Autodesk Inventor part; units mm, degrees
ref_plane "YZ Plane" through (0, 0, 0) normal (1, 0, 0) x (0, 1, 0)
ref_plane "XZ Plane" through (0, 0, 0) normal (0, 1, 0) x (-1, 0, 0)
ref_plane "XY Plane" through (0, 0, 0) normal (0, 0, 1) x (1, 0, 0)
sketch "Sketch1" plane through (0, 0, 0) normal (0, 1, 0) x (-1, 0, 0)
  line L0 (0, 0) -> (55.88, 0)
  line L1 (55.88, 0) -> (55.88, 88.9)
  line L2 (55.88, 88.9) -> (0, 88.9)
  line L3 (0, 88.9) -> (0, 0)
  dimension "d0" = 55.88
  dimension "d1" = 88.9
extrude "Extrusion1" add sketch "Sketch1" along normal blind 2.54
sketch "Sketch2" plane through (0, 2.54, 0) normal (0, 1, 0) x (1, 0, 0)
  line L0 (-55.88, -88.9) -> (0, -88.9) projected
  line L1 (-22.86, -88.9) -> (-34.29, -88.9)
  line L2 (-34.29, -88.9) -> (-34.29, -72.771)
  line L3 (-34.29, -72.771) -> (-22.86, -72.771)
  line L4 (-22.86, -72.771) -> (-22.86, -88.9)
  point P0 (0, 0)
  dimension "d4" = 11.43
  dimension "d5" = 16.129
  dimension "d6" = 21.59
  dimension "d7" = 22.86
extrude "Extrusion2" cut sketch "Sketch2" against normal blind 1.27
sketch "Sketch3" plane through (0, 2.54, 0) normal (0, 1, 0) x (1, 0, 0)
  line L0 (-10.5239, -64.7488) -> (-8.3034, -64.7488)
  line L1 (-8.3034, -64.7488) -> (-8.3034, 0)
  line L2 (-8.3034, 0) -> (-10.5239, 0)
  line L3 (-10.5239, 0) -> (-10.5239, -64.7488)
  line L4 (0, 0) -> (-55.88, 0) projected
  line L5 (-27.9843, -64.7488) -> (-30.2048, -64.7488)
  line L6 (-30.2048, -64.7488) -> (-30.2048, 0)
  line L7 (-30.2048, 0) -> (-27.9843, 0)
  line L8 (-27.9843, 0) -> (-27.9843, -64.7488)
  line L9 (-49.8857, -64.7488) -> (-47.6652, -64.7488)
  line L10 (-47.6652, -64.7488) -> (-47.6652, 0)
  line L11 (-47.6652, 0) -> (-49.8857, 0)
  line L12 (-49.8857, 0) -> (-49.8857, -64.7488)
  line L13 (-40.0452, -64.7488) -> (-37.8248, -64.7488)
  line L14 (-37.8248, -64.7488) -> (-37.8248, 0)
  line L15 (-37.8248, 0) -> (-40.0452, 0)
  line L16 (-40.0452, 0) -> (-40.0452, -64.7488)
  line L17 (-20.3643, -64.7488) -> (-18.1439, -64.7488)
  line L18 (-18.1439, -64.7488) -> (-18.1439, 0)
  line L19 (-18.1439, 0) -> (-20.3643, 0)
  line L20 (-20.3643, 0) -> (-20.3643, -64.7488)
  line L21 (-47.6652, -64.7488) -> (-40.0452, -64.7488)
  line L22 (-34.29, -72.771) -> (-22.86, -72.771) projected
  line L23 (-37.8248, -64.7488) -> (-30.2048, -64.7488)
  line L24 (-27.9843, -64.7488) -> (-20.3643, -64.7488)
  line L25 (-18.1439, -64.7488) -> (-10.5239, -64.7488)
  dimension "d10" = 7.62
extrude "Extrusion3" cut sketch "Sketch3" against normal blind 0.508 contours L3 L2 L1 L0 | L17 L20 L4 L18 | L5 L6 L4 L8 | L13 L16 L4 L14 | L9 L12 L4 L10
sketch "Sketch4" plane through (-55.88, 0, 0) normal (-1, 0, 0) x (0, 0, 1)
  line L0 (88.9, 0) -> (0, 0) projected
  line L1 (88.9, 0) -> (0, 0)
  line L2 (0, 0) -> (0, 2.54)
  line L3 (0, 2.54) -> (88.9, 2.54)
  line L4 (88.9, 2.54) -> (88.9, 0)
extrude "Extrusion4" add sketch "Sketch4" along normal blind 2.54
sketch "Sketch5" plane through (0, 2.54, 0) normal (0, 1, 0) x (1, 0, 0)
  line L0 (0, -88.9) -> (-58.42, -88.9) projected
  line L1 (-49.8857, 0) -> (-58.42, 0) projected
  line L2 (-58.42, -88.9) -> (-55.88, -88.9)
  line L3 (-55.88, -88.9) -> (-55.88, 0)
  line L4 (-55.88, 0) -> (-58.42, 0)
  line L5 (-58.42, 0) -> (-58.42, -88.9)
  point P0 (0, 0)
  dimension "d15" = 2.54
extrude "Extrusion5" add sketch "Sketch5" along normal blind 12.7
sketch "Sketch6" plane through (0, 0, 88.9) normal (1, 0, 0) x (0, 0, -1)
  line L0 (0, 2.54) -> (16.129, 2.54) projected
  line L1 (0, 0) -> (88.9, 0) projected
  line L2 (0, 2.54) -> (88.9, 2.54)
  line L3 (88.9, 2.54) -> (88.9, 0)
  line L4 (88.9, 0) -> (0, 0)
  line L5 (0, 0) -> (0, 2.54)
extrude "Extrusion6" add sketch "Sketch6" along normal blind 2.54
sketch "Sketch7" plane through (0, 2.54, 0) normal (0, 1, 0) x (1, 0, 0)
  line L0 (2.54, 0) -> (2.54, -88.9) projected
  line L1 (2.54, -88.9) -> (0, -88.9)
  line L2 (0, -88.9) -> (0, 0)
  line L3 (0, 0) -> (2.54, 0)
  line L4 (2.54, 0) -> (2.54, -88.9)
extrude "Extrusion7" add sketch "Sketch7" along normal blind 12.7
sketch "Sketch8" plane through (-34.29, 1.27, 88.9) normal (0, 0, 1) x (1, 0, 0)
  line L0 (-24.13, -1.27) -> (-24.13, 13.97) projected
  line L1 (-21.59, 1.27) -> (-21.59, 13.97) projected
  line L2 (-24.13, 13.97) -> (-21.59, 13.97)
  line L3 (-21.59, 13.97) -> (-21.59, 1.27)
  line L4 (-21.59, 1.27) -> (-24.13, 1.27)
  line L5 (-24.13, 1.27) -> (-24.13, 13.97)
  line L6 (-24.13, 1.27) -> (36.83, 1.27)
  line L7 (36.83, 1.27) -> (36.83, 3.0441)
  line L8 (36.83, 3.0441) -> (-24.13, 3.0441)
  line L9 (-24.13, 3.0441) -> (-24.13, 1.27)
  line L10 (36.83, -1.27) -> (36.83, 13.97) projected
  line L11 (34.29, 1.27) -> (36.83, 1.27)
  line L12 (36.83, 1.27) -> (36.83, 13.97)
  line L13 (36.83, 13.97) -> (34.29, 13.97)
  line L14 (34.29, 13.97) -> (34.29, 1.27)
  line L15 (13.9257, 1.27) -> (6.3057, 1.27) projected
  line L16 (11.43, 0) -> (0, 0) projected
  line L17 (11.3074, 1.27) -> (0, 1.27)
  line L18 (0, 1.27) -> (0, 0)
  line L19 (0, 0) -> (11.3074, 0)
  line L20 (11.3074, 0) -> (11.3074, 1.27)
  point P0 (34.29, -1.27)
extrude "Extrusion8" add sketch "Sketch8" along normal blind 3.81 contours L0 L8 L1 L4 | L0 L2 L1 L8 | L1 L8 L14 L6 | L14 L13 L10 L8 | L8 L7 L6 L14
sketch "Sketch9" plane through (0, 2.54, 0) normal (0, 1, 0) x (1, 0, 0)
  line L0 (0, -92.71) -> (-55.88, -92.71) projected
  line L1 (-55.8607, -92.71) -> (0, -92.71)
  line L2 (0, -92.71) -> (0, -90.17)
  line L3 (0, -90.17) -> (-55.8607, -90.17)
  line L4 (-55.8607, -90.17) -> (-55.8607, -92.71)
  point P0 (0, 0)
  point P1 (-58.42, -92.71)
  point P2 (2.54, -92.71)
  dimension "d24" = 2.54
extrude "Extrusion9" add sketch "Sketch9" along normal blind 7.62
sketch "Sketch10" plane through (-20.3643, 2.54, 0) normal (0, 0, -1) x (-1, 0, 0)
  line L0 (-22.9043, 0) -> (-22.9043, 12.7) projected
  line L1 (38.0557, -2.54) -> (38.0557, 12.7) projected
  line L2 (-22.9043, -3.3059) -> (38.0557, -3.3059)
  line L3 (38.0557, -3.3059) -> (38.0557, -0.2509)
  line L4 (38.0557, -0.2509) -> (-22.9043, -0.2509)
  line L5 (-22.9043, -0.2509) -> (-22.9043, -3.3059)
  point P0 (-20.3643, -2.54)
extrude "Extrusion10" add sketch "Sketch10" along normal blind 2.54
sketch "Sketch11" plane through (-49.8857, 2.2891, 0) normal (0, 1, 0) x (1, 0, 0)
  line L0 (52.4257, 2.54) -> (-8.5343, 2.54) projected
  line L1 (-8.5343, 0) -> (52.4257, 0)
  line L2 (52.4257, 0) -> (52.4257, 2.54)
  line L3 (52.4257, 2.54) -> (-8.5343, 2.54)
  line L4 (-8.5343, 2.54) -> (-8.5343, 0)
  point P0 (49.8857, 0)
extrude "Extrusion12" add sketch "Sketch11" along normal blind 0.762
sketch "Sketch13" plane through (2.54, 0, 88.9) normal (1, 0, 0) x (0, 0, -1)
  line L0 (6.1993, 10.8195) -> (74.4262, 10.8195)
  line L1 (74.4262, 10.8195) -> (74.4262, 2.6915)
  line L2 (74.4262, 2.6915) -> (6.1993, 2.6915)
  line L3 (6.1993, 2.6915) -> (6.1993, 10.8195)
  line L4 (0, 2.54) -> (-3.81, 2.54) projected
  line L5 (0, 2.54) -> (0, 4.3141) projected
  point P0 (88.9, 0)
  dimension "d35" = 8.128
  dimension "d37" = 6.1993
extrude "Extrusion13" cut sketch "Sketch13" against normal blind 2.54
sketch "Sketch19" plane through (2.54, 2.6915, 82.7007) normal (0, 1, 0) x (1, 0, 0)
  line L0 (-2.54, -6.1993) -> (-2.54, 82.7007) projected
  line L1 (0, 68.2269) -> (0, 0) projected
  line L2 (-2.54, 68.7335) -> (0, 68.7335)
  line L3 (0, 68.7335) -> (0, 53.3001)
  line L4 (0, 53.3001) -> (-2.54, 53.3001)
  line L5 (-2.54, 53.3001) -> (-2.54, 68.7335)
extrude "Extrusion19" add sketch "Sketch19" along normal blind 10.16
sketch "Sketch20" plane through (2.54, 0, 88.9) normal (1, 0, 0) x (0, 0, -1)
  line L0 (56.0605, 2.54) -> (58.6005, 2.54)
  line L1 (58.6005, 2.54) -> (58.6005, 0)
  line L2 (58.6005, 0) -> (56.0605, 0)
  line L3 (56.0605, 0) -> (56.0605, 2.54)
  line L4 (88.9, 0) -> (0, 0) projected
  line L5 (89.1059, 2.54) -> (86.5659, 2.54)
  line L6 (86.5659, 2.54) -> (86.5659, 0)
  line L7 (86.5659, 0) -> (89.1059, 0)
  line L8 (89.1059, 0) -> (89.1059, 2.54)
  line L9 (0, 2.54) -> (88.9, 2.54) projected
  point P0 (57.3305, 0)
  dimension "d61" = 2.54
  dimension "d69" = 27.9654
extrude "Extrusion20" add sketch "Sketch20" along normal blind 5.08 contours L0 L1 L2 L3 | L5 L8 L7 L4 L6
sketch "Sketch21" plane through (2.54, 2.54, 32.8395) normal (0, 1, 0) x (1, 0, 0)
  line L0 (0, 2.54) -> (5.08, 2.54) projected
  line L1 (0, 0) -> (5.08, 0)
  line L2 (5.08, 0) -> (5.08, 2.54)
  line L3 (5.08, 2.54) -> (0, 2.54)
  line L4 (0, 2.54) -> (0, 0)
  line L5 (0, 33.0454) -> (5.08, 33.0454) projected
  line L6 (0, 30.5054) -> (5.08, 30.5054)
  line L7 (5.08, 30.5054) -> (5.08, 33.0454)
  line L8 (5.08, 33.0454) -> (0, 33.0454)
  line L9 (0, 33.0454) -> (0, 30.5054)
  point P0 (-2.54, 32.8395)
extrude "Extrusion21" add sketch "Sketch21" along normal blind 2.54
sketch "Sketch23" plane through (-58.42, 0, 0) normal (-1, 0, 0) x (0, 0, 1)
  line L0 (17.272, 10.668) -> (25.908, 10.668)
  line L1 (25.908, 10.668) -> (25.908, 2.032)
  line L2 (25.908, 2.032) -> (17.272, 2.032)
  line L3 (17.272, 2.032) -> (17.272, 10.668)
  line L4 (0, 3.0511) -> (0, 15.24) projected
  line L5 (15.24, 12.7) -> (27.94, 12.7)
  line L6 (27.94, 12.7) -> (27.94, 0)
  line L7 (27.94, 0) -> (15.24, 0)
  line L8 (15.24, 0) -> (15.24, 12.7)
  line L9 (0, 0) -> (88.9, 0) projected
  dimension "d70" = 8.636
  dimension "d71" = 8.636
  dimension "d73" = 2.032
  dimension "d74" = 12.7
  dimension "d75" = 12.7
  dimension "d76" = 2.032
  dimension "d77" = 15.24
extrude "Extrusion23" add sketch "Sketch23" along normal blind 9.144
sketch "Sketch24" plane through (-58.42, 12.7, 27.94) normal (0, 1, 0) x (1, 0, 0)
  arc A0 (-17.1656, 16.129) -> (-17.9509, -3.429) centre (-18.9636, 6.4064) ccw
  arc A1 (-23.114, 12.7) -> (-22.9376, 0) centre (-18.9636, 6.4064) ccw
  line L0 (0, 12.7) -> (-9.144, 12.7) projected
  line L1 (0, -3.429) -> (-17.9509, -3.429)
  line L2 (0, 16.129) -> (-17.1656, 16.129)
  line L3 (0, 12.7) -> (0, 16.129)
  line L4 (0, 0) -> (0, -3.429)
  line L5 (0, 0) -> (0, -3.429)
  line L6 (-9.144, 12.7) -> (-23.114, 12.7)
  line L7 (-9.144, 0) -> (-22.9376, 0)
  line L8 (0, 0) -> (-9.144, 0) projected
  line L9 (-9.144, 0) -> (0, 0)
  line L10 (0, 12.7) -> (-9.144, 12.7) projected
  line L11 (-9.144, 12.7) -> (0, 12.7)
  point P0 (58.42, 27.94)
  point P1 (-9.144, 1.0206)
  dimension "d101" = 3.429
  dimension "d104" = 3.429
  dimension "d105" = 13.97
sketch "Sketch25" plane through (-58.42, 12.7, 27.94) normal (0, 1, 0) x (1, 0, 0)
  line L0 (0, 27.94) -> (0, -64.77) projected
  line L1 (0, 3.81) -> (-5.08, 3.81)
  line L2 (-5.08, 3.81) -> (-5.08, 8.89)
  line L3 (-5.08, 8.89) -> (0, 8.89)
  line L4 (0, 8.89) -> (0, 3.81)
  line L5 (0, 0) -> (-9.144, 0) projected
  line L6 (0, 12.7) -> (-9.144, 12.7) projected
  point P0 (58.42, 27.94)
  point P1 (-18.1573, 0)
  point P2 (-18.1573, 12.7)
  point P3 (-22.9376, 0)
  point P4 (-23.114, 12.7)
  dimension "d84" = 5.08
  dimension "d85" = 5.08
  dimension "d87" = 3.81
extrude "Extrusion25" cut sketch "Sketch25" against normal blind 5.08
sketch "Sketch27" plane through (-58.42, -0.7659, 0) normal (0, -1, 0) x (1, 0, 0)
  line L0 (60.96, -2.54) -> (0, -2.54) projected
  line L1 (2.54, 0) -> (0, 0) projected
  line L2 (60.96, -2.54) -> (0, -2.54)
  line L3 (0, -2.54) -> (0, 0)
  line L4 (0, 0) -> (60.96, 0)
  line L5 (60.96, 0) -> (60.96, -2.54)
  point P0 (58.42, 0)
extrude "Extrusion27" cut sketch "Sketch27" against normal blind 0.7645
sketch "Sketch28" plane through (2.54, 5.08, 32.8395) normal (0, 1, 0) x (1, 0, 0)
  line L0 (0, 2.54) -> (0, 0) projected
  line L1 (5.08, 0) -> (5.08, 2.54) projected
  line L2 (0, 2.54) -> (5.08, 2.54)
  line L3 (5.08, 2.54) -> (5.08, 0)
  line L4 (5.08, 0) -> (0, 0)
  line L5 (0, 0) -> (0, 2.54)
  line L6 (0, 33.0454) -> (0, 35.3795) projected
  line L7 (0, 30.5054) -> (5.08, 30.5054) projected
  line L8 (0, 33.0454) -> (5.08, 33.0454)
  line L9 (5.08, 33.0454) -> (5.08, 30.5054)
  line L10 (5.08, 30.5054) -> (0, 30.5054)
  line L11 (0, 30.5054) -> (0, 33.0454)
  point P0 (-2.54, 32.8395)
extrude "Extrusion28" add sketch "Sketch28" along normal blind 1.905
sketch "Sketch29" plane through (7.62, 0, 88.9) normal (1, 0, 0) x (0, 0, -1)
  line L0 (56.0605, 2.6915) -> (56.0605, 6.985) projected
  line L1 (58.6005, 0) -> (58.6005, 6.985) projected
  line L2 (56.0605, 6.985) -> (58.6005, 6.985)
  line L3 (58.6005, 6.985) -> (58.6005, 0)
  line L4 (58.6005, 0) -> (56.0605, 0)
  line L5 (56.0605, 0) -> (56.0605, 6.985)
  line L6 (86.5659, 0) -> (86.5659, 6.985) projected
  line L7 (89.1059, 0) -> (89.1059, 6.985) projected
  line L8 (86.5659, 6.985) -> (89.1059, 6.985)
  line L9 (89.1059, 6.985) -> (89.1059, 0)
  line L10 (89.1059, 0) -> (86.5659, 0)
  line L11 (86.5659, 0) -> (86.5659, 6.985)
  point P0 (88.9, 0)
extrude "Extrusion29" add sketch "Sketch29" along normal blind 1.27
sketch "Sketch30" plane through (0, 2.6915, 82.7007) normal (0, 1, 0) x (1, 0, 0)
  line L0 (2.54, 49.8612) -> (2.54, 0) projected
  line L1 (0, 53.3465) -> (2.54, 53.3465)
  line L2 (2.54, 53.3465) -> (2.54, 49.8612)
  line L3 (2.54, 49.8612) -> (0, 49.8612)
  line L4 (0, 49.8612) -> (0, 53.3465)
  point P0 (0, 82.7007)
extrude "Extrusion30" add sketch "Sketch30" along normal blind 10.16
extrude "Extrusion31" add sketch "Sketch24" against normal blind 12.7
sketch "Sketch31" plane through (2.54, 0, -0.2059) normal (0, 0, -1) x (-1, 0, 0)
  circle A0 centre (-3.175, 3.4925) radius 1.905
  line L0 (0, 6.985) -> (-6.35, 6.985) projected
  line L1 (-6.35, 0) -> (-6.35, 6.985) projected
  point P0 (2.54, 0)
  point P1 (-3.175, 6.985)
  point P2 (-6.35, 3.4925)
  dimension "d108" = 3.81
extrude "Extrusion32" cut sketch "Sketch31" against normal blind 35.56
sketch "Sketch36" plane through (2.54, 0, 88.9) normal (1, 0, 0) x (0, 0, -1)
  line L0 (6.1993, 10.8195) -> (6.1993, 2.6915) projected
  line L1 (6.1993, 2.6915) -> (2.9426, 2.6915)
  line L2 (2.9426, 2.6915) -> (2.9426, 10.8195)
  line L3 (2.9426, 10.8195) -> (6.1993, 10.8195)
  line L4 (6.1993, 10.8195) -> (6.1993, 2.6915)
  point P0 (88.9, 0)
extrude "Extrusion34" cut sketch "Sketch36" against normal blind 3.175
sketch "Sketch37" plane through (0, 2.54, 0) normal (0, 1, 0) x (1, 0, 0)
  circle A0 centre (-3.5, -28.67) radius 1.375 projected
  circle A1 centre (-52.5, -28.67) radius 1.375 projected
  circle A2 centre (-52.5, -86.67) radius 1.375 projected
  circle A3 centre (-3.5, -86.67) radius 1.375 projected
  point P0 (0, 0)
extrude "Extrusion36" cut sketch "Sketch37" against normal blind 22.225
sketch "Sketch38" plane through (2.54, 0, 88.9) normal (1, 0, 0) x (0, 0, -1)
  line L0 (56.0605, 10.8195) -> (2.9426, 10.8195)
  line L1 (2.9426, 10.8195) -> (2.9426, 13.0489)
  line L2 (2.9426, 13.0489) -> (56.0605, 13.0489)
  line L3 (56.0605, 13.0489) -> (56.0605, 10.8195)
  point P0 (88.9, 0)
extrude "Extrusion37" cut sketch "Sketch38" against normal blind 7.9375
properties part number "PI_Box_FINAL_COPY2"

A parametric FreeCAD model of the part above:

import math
import FreeCAD as App
import Part
import Sketcher

V = App.Vector
Q = App.Units.Quantity


def add_polygon(sketch, points):
    """Adds a closed chain of lines whose ends are joined by coincident constraints."""
    first, n = sketch.GeometryCount, len(points)
    for a, b in zip(points, points[1:] + points[:1]):
        sketch.addGeometry(Part.LineSegment(App.Vector(*a, 0), App.Vector(*b, 0)), False)
    for i in range(n):
        sketch.addConstraint(Sketcher.Constraint("Coincident", first + i, 2, first + (i + 1) % n, 1))

doc = App.newDocument("Part")
body = doc.addObject("PartDesign::Body", "Body")

sketch1 = body.newObject("Sketcher::SketchObject", "Sketch")
sketch1.AttachmentSupport = (doc.getObject("XZ_Plane"), [""])
sketch1.MapMode = "FlatFace"
add_polygon(sketch1, [(0, 88.9), (0, 0), (-55.88, 0), (-55.88, 88.9)])
sketch1.addConstraint(Sketcher.Constraint("Vertical", 0))
sketch1.addConstraint(Sketcher.Constraint("Horizontal", 1))
sketch1.addConstraint(Sketcher.Constraint("Vertical", 2))
sketch1.addConstraint(Sketcher.Constraint("Horizontal", 3))
sketch1.addConstraint(Sketcher.Constraint("Coincident", 0, 2, -1, 1))
sketch1.addConstraint(Sketcher.Constraint("DistanceX", 1, 2, 1, 1, Q("2.2 in")))
sketch1.addConstraint(Sketcher.Constraint("DistanceY", 0, 2, 0, 1, Q("3.5 in")))
pad1 = body.newObject("PartDesign::Pad", "Pad")
pad1.Profile = sketch1
pad1.Length = Q("0.1 in")
pad1.Reversed = True

sketch2 = body.newObject("Sketcher::SketchObject", "Sketch001")
sketch2.AttachmentSupport = (doc.getObject("XZ_Plane"), [""])
sketch2.MapMode = "FlatFace"
sketch2.AttachmentOffset = App.Placement(V(0, 0, -0.1 * 25.4), App.Rotation())
add_polygon(sketch2, [(-34.29, 72.771), (-34.29, 88.9), (-22.86, 88.9), (-22.86, 72.771)])
sketch2.addConstraint(Sketcher.Constraint("Vertical", 0))
sketch2.addConstraint(Sketcher.Constraint("Horizontal", 1))
sketch2.addConstraint(Sketcher.Constraint("Vertical", 2))
sketch2.addConstraint(Sketcher.Constraint("Horizontal", 3))
sketch2.addConstraint(Sketcher.Constraint("DistanceX", 1, 1, 1, 2, Q("0.45 in")))
sketch2.addConstraint(Sketcher.Constraint("DistanceX", 1, 2, -1, 1, Q("0.9 in")))
sketch2.addConstraint(Sketcher.Constraint("DistanceY", 0, 1, 0, 2, Q("0.635 in")))
sketch2.addConstraint(Sketcher.Constraint("DistanceY", -1, 1, 0, 2, Q("3.5 in")))
pocket1 = body.newObject("PartDesign::Pocket", "Pocket")
pocket1.Profile = sketch2
pocket1.Length = Q("0.05 in")
pocket1.Reversed = True

sketch3 = body.newObject("Sketcher::SketchObject", "Sketch002")
sketch3.AttachmentSupport = (doc.getObject("XZ_Plane"), [""])
sketch3.MapMode = "FlatFace"
sketch3.AttachmentOffset = App.Placement(V(0, 0, -0.1 * 25.4), App.Rotation())
add_polygon(sketch3, [(-10.5239, 0), (-10.5239, 64.7488), (-8.3034, 64.7488), (-8.3034, 0)])
add_polygon(sketch3, [(-20.3643, 64.7488), (-18.1439, 64.7488), (-18.1439, 0), (-20.3643, 0)])
add_polygon(sketch3, [(-30.2048, 64.7488), (-27.9843, 64.7488), (-27.9843, 0), (-30.2048, 0)])
add_polygon(sketch3, [(-40.0452, 64.7488), (-37.8248, 64.7488), (-37.8248, 0), (-40.0452, 0)])
add_polygon(sketch3, [(-49.8857, 64.7488), (-47.6652, 64.7488), (-47.6652, 0), (-49.8857, 0)])
sketch3.addConstraint(Sketcher.Constraint("Vertical", 0))
sketch3.addConstraint(Sketcher.Constraint("Horizontal", 1))
sketch3.addConstraint(Sketcher.Constraint("Vertical", 2))
sketch3.addConstraint(Sketcher.Constraint("Horizontal", 3))
sketch3.addConstraint(Sketcher.Constraint("Horizontal", 4))
sketch3.addConstraint(Sketcher.Constraint("Vertical", 5))
sketch3.addConstraint(Sketcher.Constraint("Horizontal", 6))
sketch3.addConstraint(Sketcher.Constraint("Vertical", 7))
sketch3.addConstraint(Sketcher.Constraint("Horizontal", 8))
sketch3.addConstraint(Sketcher.Constraint("Vertical", 9))
sketch3.addConstraint(Sketcher.Constraint("Horizontal", 10))
sketch3.addConstraint(Sketcher.Constraint("Vertical", 11))
sketch3.addConstraint(Sketcher.Constraint("Horizontal", 12))
sketch3.addConstraint(Sketcher.Constraint("Vertical", 13))
sketch3.addConstraint(Sketcher.Constraint("Horizontal", 14))
sketch3.addConstraint(Sketcher.Constraint("Vertical", 15))
sketch3.addConstraint(Sketcher.Constraint("Horizontal", 16))
sketch3.addConstraint(Sketcher.Constraint("Vertical", 17))
sketch3.addConstraint(Sketcher.Constraint("Horizontal", 18))
sketch3.addConstraint(Sketcher.Constraint("Vertical", 19))
sketch3.addConstraint(Sketcher.Constraint("PointOnObject", 2, 2, -1))
sketch3.addConstraint(Sketcher.Constraint("PointOnObject", 5, 2, -1))
sketch3.addConstraint(Sketcher.Constraint("PointOnObject", 9, 2, -1))
sketch3.addConstraint(Sketcher.Constraint("PointOnObject", 13, 2, -1))
sketch3.addConstraint(Sketcher.Constraint("PointOnObject", 17, 2, -1))
sketch3.addConstraint(Sketcher.Constraint("Horizontal", 1, 2, 4, 2))
sketch3.addConstraint(Sketcher.Constraint("Horizontal", 7, 2, 8, 2))
sketch3.addConstraint(Sketcher.Constraint("Horizontal", 11, 2, 12, 2))
sketch3.addConstraint(Sketcher.Constraint("Horizontal", 15, 2, 16, 2))
sketch3.addConstraint(Sketcher.Constraint("Equal", 3, 4))
sketch3.addConstraint(Sketcher.Constraint("Equal", 6, 8))
sketch3.addConstraint(Sketcher.Constraint("Equal", 10, 12))
sketch3.addConstraint(Sketcher.Constraint("Equal", 14, 16))
sketch3.addConstraint(Sketcher.Constraint("DistanceX", 4, 2, 0, 2, Q("0.3 in")))
sketch3.addConstraint(Sketcher.Constraint("DistanceX", 8, 2, 7, 2, Q("0.3 in")))
sketch3.addConstraint(Sketcher.Constraint("DistanceX", 12, 2, 11, 2, Q("0.3 in")))
sketch3.addConstraint(Sketcher.Constraint("DistanceX", 16, 2, 15, 2, Q("0.3 in")))
sketch3.addConstraint(Sketcher.Constraint("DistanceX", 18, 2, -1, 1, Q("1.964 in")))
sketch3.addConstraint(Sketcher.Constraint("DistanceX", 1, 1, 1, 2, Q("2.2205 mm")))
sketch3.addConstraint(Sketcher.Constraint("DistanceY", 0, 1, 0, 2, Q("64.7488 mm")))
pocket2 = body.newObject("PartDesign::Pocket", "Pocket001")
pocket2.Profile = sketch3
pocket2.Length = Q("0.02 in")
pocket2.Reversed = True

sketch4 = body.newObject("Sketcher::SketchObject", "Sketch003")
sketch4.AttachmentSupport = (doc.getObject("YZ_Plane"), [""])
sketch4.MapMode = "FlatFace"
sketch4.AttachmentOffset = App.Placement(V(0, 0, -2.2 * 25.4), App.Rotation())
add_polygon(sketch4, [(0, 0), (0, 88.9), (2.54, 88.9), (2.54, 0)])
sketch4.addConstraint(Sketcher.Constraint("Vertical", 0))
sketch4.addConstraint(Sketcher.Constraint("Horizontal", 1))
sketch4.addConstraint(Sketcher.Constraint("Vertical", 2))
sketch4.addConstraint(Sketcher.Constraint("Horizontal", 3))
sketch4.addConstraint(Sketcher.Constraint("Coincident", 3, 2, -1, 1))
sketch4.addConstraint(Sketcher.Constraint("DistanceX", 1, 1, 1, 2, Q("0.1 in")))
sketch4.addConstraint(Sketcher.Constraint("DistanceY", 0, 1, 0, 2, Q("3.5 in")))
pad2 = body.newObject("PartDesign::Pad", "Pad001")
pad2.Profile = sketch4
pad2.Length = Q("0.1 in")
pad2.Reversed = True

sketch5 = body.newObject("Sketcher::SketchObject", "Sketch004")
sketch5.AttachmentSupport = (doc.getObject("XZ_Plane"), [""])
sketch5.MapMode = "FlatFace"
sketch5.AttachmentOffset = App.Placement(V(0, 0, -0.1 * 25.4), App.Rotation())
add_polygon(sketch5, [(-58.42, 88.9), (-55.88, 88.9), (-55.88, 0), (-58.42, 0)])
sketch5.addConstraint(Sketcher.Constraint("Horizontal", 0))
sketch5.addConstraint(Sketcher.Constraint("Vertical", 1))
sketch5.addConstraint(Sketcher.Constraint("Horizontal", 2))
sketch5.addConstraint(Sketcher.Constraint("Vertical", 3))
sketch5.addConstraint(Sketcher.Constraint("PointOnObject", 1, 2, -1))
sketch5.addConstraint(Sketcher.Constraint("DistanceX", 0, 1, 0, 2, Q("0.1 in")))
sketch5.addConstraint(Sketcher.Constraint("DistanceY", 1, 2, 1, 1, Q("3.5 in")))
sketch5.addConstraint(Sketcher.Constraint("DistanceX", 0, 2, -1, 1, Q("2.2 in")))
pad3 = body.newObject("PartDesign::Pad", "Pad002")
pad3.Profile = sketch5
pad3.Length = Q("0.5 in")
pad3.Reversed = True

sketch6 = body.newObject("Sketcher::SketchObject", "Sketch005")
sketch6.AttachmentSupport = (doc.getObject("YZ_Plane"), [""])
sketch6.MapMode = "FlatFace"
add_polygon(sketch6, [(2.54, 0), (2.54, 88.9), (0, 88.9), (0, 0)])
sketch6.addConstraint(Sketcher.Constraint("Vertical", 0))
sketch6.addConstraint(Sketcher.Constraint("Horizontal", 1))
sketch6.addConstraint(Sketcher.Constraint("Vertical", 2))
sketch6.addConstraint(Sketcher.Constraint("Horizontal", 3))
sketch6.addConstraint(Sketcher.Constraint("Coincident", 2, 2, -1, 1))
sketch6.addConstraint(Sketcher.Constraint("DistanceX", 1, 2, 1, 1, Q("0.1 in")))
sketch6.addConstraint(Sketcher.Constraint("DistanceY", 0, 1, 0, 2, Q("3.5 in")))
pad4 = body.newObject("PartDesign::Pad", "Pad003")
pad4.Profile = sketch6
pad4.Length = Q("0.1 in")

sketch7 = body.newObject("Sketcher::SketchObject", "Sketch006")
sketch7.AttachmentSupport = (doc.getObject("XZ_Plane"), [""])
sketch7.MapMode = "FlatFace"
sketch7.AttachmentOffset = App.Placement(V(0, 0, -0.1 * 25.4), App.Rotation())
add_polygon(sketch7, [(2.54, 88.9), (2.54, 0), (0, 0), (0, 88.9)])
sketch7.addConstraint(Sketcher.Constraint("Vertical", 0))
sketch7.addConstraint(Sketcher.Constraint("Horizontal", 1))
sketch7.addConstraint(Sketcher.Constraint("Vertical", 2))
sketch7.addConstraint(Sketcher.Constraint("Horizontal", 3))
sketch7.addConstraint(Sketcher.Constraint("Coincident", 1, 2, -1, 1))
sketch7.addConstraint(Sketcher.Constraint("DistanceX", 1, 2, 1, 1, Q("0.1 in")))
sketch7.addConstraint(Sketcher.Constraint("DistanceY", 0, 2, 0, 1, Q("3.5 in")))
pad5 = body.newObject("PartDesign::Pad", "Pad004")
pad5.Profile = sketch7
pad5.Length = Q("0.5 in")
pad5.Reversed = True

sketch8 = body.newObject("Sketcher::SketchObject", "Sketch007")
sketch8.AttachmentSupport = (doc.getObject("XY_Plane"), [""])
sketch8.MapMode = "FlatFace"
sketch8.AttachmentOffset = App.Placement(V(0, 0, 3.5 * 25.4), App.Rotation())
add_polygon(sketch8, [(-58.42, 2.54), (2.54, 2.54), (2.54, 15.24), (0, 15.24), (0, 4.3141), (-55.88, 4.3141), (-55.88, 15.24), (-58.42, 15.24)])
sketch8.addConstraint(Sketcher.Constraint("Horizontal", 0))
sketch8.addConstraint(Sketcher.Constraint("Vertical", 1))
sketch8.addConstraint(Sketcher.Constraint("Horizontal", 2))
sketch8.addConstraint(Sketcher.Constraint("Vertical", 3))
sketch8.addConstraint(Sketcher.Constraint("Horizontal", 4))
sketch8.addConstraint(Sketcher.Constraint("Vertical", 5))
sketch8.addConstraint(Sketcher.Constraint("Horizontal", 6))
sketch8.addConstraint(Sketcher.Constraint("Vertical", 7))
sketch8.addConstraint(Sketcher.Constraint("PointOnObject", 2, 2, -2))
sketch8.addConstraint(Sketcher.Constraint("Horizontal", 2, 2, 5, 2))
sketch8.addConstraint(Sketcher.Constraint("Equal", 2, 6))
sketch8.addConstraint(Sketcher.Constraint("DistanceX", 0, 1, 0, 2, Q("2.4 in")))
sketch8.addConstraint(Sketcher.Constraint("DistanceX", 2, 2, 2, 1, Q("0.1 in")))
sketch8.addConstraint(Sketcher.Constraint("DistanceY", 1, 1, 1, 2, Q("0.5 in")))
sketch8.addConstraint(Sketcher.Constraint("DistanceY", -1, 1, 0, 2, Q("0.1 in")))
sketch8.addConstraint(Sketcher.Constraint("DistanceY", 3, 2, 3, 1, Q("10.926 mm")))
pad6 = body.newObject("PartDesign::Pad", "Pad005")
pad6.Profile = sketch8
pad6.Length = Q("0.15 in")

sketch9 = body.newObject("Sketcher::SketchObject", "Sketch008")
sketch9.AttachmentSupport = (doc.getObject("XZ_Plane"), [""])
sketch9.MapMode = "FlatFace"
sketch9.AttachmentOffset = App.Placement(V(0, 0, -0.1 * 25.4), App.Rotation())
add_polygon(sketch9, [(-55.8607, 92.71), (0, 92.71), (0, 90.17), (-55.8607, 90.17)])
sketch9.addConstraint(Sketcher.Constraint("Horizontal", 0))
sketch9.addConstraint(Sketcher.Constraint("Vertical", 1))
sketch9.addConstraint(Sketcher.Constraint("Horizontal", 2))
sketch9.addConstraint(Sketcher.Constraint("Vertical", 3))
sketch9.addConstraint(Sketcher.Constraint("PointOnObject", 0, 2, -2))
sketch9.addConstraint(Sketcher.Constraint("DistanceY", 1, 2, 1, 1, Q("0.1 in")))
sketch9.addConstraint(Sketcher.Constraint("DistanceY", -1, 1, 0, 2, Q("3.65 in")))
sketch9.addConstraint(Sketcher.Constraint("DistanceX", 0, 1, 0, 2, Q("55.8607 mm")))
pad7 = body.newObject("PartDesign::Pad", "Pad006")
pad7.Profile = sketch9
pad7.Length = Q("0.3 in")
pad7.Reversed = True

sketch10 = body.newObject("Sketcher::SketchObject", "Sketch009")
sketch10.AttachmentSupport = (doc.getObject("XY_Plane"), [""])
sketch10.MapMode = "FlatFace"
add_polygon(sketch10, [(-58.42, -0.7659), (-58.42, 2.2891), (2.54, 2.2891), (2.54, -0.7659)])
sketch10.addConstraint(Sketcher.Constraint("Vertical", 0))
sketch10.addConstraint(Sketcher.Constraint("Horizontal", 1))
sketch10.addConstraint(Sketcher.Constraint("Vertical", 2))
sketch10.addConstraint(Sketcher.Constraint("Horizontal", 3))
sketch10.addConstraint(Sketcher.Constraint("DistanceX", 1, 1, 1, 2, Q("2.4 in")))
sketch10.addConstraint(Sketcher.Constraint("DistanceX", 0, 2, -1, 1, Q("2.3 in")))
sketch10.addConstraint(Sketcher.Constraint("DistanceY", 0, 1, 0, 2, Q("3.055 mm")))
sketch10.addConstraint(Sketcher.Constraint("DistanceY", -1, 1, 0, 2, Q("2.289 mm")))
pad8 = body.newObject("PartDesign::Pad", "Pad007")
pad8.Profile = sketch10
pad8.Length = Q("0.1 in")
pad8.Reversed = True

sketch11 = body.newObject("Sketcher::SketchObject", "Sketch010")
sketch11.AttachmentSupport = (doc.getObject("XZ_Plane"), [""])
sketch11.MapMode = "FlatFace"
sketch11.AttachmentOffset = App.Placement(V(0, 0, -2.2891), App.Rotation())
add_polygon(sketch11, [(2.54, 0), (2.54, -2.54), (-58.42, -2.54), (-58.42, 0)])
sketch11.addConstraint(Sketcher.Constraint("Vertical", 0))
sketch11.addConstraint(Sketcher.Constraint("Horizontal", 1))
sketch11.addConstraint(Sketcher.Constraint("Vertical", 2))
sketch11.addConstraint(Sketcher.Constraint("Horizontal", 3))
sketch11.addConstraint(Sketcher.Constraint("PointOnObject", 2, 2, -1))
sketch11.addConstraint(Sketcher.Constraint("DistanceX", 1, 2, 1, 1, Q("2.4 in")))
sketch11.addConstraint(Sketcher.Constraint("DistanceY", 0, 2, 0, 1, Q("0.1 in")))
sketch11.addConstraint(Sketcher.Constraint("DistanceX", -1, 1, 0, 2, Q("0.1 in")))
pad9 = body.newObject("PartDesign::Pad", "Pad008")
pad9.Profile = sketch11
pad9.Length = Q("0.03 in")
pad9.Reversed = True

sketch12 = body.newObject("Sketcher::SketchObject", "Sketch011")
sketch12.AttachmentSupport = (doc.getObject("YZ_Plane"), [""])
sketch12.MapMode = "FlatFace"
sketch12.AttachmentOffset = App.Placement(V(0, 0, 0.1 * 25.4), App.Rotation())
add_polygon(sketch12, [(10.8195, 14.4738), (10.8195, 82.7007), (2.6915, 82.7007), (2.6915, 14.4738)])
sketch12.addConstraint(Sketcher.Constraint("Vertical", 0))
sketch12.addConstraint(Sketcher.Constraint("Horizontal", 1))
sketch12.addConstraint(Sketcher.Constraint("Vertical", 2))
sketch12.addConstraint(Sketcher.Constraint("Horizontal", 3))
sketch12.addConstraint(Sketcher.Constraint("DistanceX", 1, 2, 1, 1, Q("0.32 in")))
sketch12.addConstraint(Sketcher.Constraint("DistanceY", 0, 1, 0, 2, Q("2.6861 in")))
sketch12.addConstraint(Sketcher.Constraint("DistanceX", -1, 1, 0, 2, Q("10.8195 mm")))
sketch12.addConstraint(Sketcher.Constraint("DistanceY", -1, 1, 0, 2, Q("82.7007 mm")))
pocket3 = body.newObject("PartDesign::Pocket", "Pocket002")
pocket3.Profile = sketch12
pocket3.Length = Q("0.1 in")

sketch13 = body.newObject("Sketcher::SketchObject", "Sketch012")
sketch13.AttachmentSupport = (doc.getObject("XZ_Plane"), [""])
sketch13.MapMode = "FlatFace"
sketch13.AttachmentOffset = App.Placement(V(0, 0, -2.6915), App.Rotation())
add_polygon(sketch13, [(0, 13.9672), (0, 29.4006), (2.54, 29.4006), (2.54, 13.9672)])
sketch13.addConstraint(Sketcher.Constraint("Vertical", 0))
sketch13.addConstraint(Sketcher.Constraint("Horizontal", 1))
sketch13.addConstraint(Sketcher.Constraint("Vertical", 2))
sketch13.addConstraint(Sketcher.Constraint("Horizontal", 3))
sketch13.addConstraint(Sketcher.Constraint("PointOnObject", 0, 2, -2))
sketch13.addConstraint(Sketcher.Constraint("DistanceX", 1, 1, 1, 2, Q("0.1 in")))
sketch13.addConstraint(Sketcher.Constraint("DistanceY", 0, 1, 0, 2, Q("15.4334 mm")))
sketch13.addConstraint(Sketcher.Constraint("DistanceY", -1, 1, 0, 2, Q("1.1575 in")))
pad10 = body.newObject("PartDesign::Pad", "Pad009")
pad10.Profile = sketch13
pad10.Length = Q("0.4 in")
pad10.Reversed = True

sketch14 = body.newObject("Sketcher::SketchObject", "Sketch013")
sketch14.AttachmentSupport = (doc.getObject("YZ_Plane"), [""])
sketch14.MapMode = "FlatFace"
sketch14.AttachmentOffset = App.Placement(V(0, 0, 0.1 * 25.4), App.Rotation())
add_polygon(sketch14, [(2.54, 30.2995), (2.54, 32.8395), (0, 32.8395), (0, 30.2995)])
add_polygon(sketch14, [(2.54, -0.2059), (2.54, 2.3341), (0, 2.3341), (0, -0.2059)])
sketch14.addConstraint(Sketcher.Constraint("Vertical", 0))
sketch14.addConstraint(Sketcher.Constraint("Horizontal", 1))
sketch14.addConstraint(Sketcher.Constraint("Vertical", 2))
sketch14.addConstraint(Sketcher.Constraint("Horizontal", 3))
sketch14.addConstraint(Sketcher.Constraint("Vertical", 4))
sketch14.addConstraint(Sketcher.Constraint("Horizontal", 5))
sketch14.addConstraint(Sketcher.Constraint("Vertical", 6))
sketch14.addConstraint(Sketcher.Constraint("Horizontal", 7))
sketch14.addConstraint(Sketcher.Constraint("PointOnObject", 1, 2, -2))
sketch14.addConstraint(Sketcher.Constraint("PointOnObject", 5, 2, -2))
sketch14.addConstraint(Sketcher.Constraint("Vertical", 3, 2, 4, 2))
sketch14.addConstraint(Sketcher.Constraint("Equal", 7, 0))
sketch14.addConstraint(Sketcher.Constraint("Equal", 2, 4))
sketch14.addConstraint(Sketcher.Constraint("DistanceX", 1, 2, 1, 1, Q("0.1 in")))
sketch14.addConstraint(Sketcher.Constraint("DistanceY", 4, 2, 3, 2, Q("1.101 in")))
sketch14.addConstraint(Sketcher.Constraint("DistanceY", -1, 1, 0, 2, Q("1.2929 in")))
pad11 = body.newObject("PartDesign::Pad", "Pad010")
pad11.Profile = sketch14
pad11.Length = Q("0.2 in")

sketch15 = body.newObject("Sketcher::SketchObject", "Sketch014")
sketch15.AttachmentSupport = (doc.getObject("XZ_Plane"), [""])
sketch15.MapMode = "FlatFace"
sketch15.AttachmentOffset = App.Placement(V(0, 0, -0.1 * 25.4), App.Rotation())
add_polygon(sketch15, [(7.62, 30.2995), (2.54, 30.2995), (2.54, 32.8395), (7.62, 32.8395)])
add_polygon(sketch15, [(7.62, -0.2059), (2.54, -0.2059), (2.54, 2.3341), (7.62, 2.3341)])
sketch15.addConstraint(Sketcher.Constraint("Horizontal", 0))
sketch15.addConstraint(Sketcher.Constraint("Vertical", 1))
sketch15.addConstraint(Sketcher.Constraint("Horizontal", 2))
sketch15.addConstraint(Sketcher.Constraint("Vertical", 3))
sketch15.addConstraint(Sketcher.Constraint("Horizontal", 4))
sketch15.addConstraint(Sketcher.Constraint("Vertical", 5))
sketch15.addConstraint(Sketcher.Constraint("Horizontal", 6))
sketch15.addConstraint(Sketcher.Constraint("Vertical", 7))
sketch15.addConstraint(Sketcher.Constraint("Vertical", 1, 2, 4, 2))
sketch15.addConstraint(Sketcher.Constraint("Vertical", 3, 2, 6, 2))
sketch15.addConstraint(Sketcher.Constraint("Equal", 3, 5))
sketch15.addConstraint(Sketcher.Constraint("DistanceX", 0, 2, 0, 1, Q("0.2 in")))
sketch15.addConstraint(Sketcher.Constraint("DistanceY", 1, 1, 1, 2, Q("0.1 in")))
sketch15.addConstraint(Sketcher.Constraint("DistanceX", -1, 1, 0, 2, Q("0.1 in")))
sketch15.addConstraint(Sketcher.Constraint("DistanceY", 4, 2, 0, 2, Q("1.201 in")))
sketch15.addConstraint(Sketcher.Constraint("DistanceY", -1, 1, 0, 2, Q("1.1929 in")))
pad12 = body.newObject("PartDesign::Pad", "Pad011")
pad12.Profile = sketch15
pad12.Length = Q("0.1 in")
pad12.Reversed = True

sketch16 = body.newObject("Sketcher::SketchObject", "Sketch015")
sketch16.AttachmentSupport = (doc.getObject("YZ_Plane"), [""])
sketch16.MapMode = "FlatFace"
sketch16.AttachmentOffset = App.Placement(V(0, 0, -2.3 * 25.4), App.Rotation())
add_polygon(sketch16, [(12.7, 27.94), (12.7, 15.24), (0, 15.24), (0, 27.94)])
add_polygon(sketch16, [(2.032, 17.272), (10.668, 17.272), (10.668, 25.908), (2.032, 25.908)])
sketch16.addConstraint(Sketcher.Constraint("Vertical", 0))
sketch16.addConstraint(Sketcher.Constraint("Horizontal", 1))
sketch16.addConstraint(Sketcher.Constraint("Vertical", 2))
sketch16.addConstraint(Sketcher.Constraint("Horizontal", 3))
sketch16.addConstraint(Sketcher.Constraint("Horizontal", 4))
sketch16.addConstraint(Sketcher.Constraint("Vertical", 5))
sketch16.addConstraint(Sketcher.Constraint("Horizontal", 6))
sketch16.addConstraint(Sketcher.Constraint("Vertical", 7))
sketch16.addConstraint(Sketcher.Constraint("PointOnObject", 1, 2, -2))
sketch16.addConstraint(Sketcher.Constraint("Equal", 3, 0))
sketch16.addConstraint(Sketcher.Constraint("Equal", 6, 5))
sketch16.addConstraint(Sketcher.Constraint("DistanceX", 1, 2, 1, 1, Q("0.5 in")))
sketch16.addConstraint(Sketcher.Constraint("DistanceX", 4, 1, 4, 2, Q("0.34 in")))
sketch16.addConstraint(Sketcher.Constraint("DistanceY", -1, 1, 0, 2, Q("0.6 in")))
sketch16.addConstraint(Sketcher.Constraint("DistanceX", -1, 1, 6, 2, Q("0.08 in")))
sketch16.addConstraint(Sketcher.Constraint("DistanceY", 0, 2, 4, 2, Q("0.08 in")))
pad13 = body.newObject("PartDesign::Pad", "Pad012")
pad13.Profile = sketch16
pad13.Length = Q("0.36 in")
pad13.Reversed = True

sketch17 = body.newObject("Sketcher::SketchObject", "Sketch016")
sketch17.AttachmentSupport = (doc.getObject("XZ_Plane"), [""])
sketch17.MapMode = "FlatFace"
sketch17.AttachmentOffset = App.Placement(V(0, 0, -0.5 * 25.4), App.Rotation())
add_polygon(sketch17, [(-58.42, 24.13), (-58.42, 19.05), (-63.5, 19.05), (-63.5, 24.13)])
sketch17.addConstraint(Sketcher.Constraint("Vertical", 0))
sketch17.addConstraint(Sketcher.Constraint("Horizontal", 1))
sketch17.addConstraint(Sketcher.Constraint("Vertical", 2))
sketch17.addConstraint(Sketcher.Constraint("Horizontal", 3))
sketch17.addConstraint(Sketcher.Constraint("Equal", 3, 0))
sketch17.addConstraint(Sketcher.Constraint("DistanceX", 1, 2, 1, 1, Q("0.2 in")))
sketch17.addConstraint(Sketcher.Constraint("DistanceX", 0, 2, -1, 1, Q("2.3 in")))
sketch17.addConstraint(Sketcher.Constraint("DistanceY", -1, 1, 0, 2, Q("0.75 in")))
pocket4 = body.newObject("PartDesign::Pocket", "Pocket003")
pocket4.Profile = sketch17
pocket4.Length = Q("0.2 in")
pocket4.Reversed = True

sketch18 = body.newObject("Sketcher::SketchObject", "Sketch017")
sketch18.AttachmentSupport = (doc.getObject("XZ_Plane"), [""])
sketch18.MapMode = "FlatFace"
sketch18.AttachmentOffset = App.Placement(V(0, 0, 0.7659), App.Rotation())
add_polygon(sketch18, [(-58.42, -2.54), (2.54, -2.54), (2.54, 0), (-58.42, 0)])
sketch18.addConstraint(Sketcher.Constraint("Horizontal", 0))
sketch18.addConstraint(Sketcher.Constraint("Vertical", 1))
sketch18.addConstraint(Sketcher.Constraint("Horizontal", 2))
sketch18.addConstraint(Sketcher.Constraint("Vertical", 3))
sketch18.addConstraint(Sketcher.Constraint("PointOnObject", 1, 2, -1))
sketch18.addConstraint(Sketcher.Constraint("DistanceX", 0, 1, 0, 2, Q("2.4 in")))
sketch18.addConstraint(Sketcher.Constraint("DistanceY", 1, 1, 1, 2, Q("0.1 in")))
sketch18.addConstraint(Sketcher.Constraint("DistanceX", -1, 1, 0, 2, Q("0.1 in")))
pocket5 = body.newObject("PartDesign::Pocket", "Pocket004")
pocket5.Profile = sketch18
pocket5.Length = Q("0.0300984 in")

sketch19 = body.newObject("Sketcher::SketchObject", "Sketch018")
sketch19.AttachmentSupport = (doc.getObject("XZ_Plane"), [""])
sketch19.MapMode = "FlatFace"
sketch19.AttachmentOffset = App.Placement(V(0, 0, -0.2 * 25.4), App.Rotation())
add_polygon(sketch19, [(7.62, 30.2995), (2.54, 30.2995), (2.54, 32.8395), (7.62, 32.8395)])
add_polygon(sketch19, [(2.54, -0.2059), (2.54, 2.3341), (7.62, 2.3341), (7.62, -0.2059)])
sketch19.addConstraint(Sketcher.Constraint("Horizontal", 0))
sketch19.addConstraint(Sketcher.Constraint("Vertical", 1))
sketch19.addConstraint(Sketcher.Constraint("Horizontal", 2))
sketch19.addConstraint(Sketcher.Constraint("Vertical", 3))
sketch19.addConstraint(Sketcher.Constraint("Vertical", 4))
sketch19.addConstraint(Sketcher.Constraint("Horizontal", 5))
sketch19.addConstraint(Sketcher.Constraint("Vertical", 6))
sketch19.addConstraint(Sketcher.Constraint("Horizontal", 7))
sketch19.addConstraint(Sketcher.Constraint("Vertical", 1, 2, 4, 2))
sketch19.addConstraint(Sketcher.Constraint("Vertical", 3, 2, 5, 2))
sketch19.addConstraint(Sketcher.Constraint("Equal", 3, 4))
sketch19.addConstraint(Sketcher.Constraint("DistanceX", 0, 2, 0, 1, Q("0.2 in")))
sketch19.addConstraint(Sketcher.Constraint("DistanceY", 1, 1, 1, 2, Q("0.1 in")))
sketch19.addConstraint(Sketcher.Constraint("DistanceX", -1, 1, 0, 2, Q("0.1 in")))
sketch19.addConstraint(Sketcher.Constraint("DistanceY", 4, 2, 0, 2, Q("1.101 in")))
sketch19.addConstraint(Sketcher.Constraint("DistanceY", -1, 1, 0, 2, Q("1.1929 in")))
pad14 = body.newObject("PartDesign::Pad", "Pad013")
pad14.Profile = sketch19
pad14.Length = Q("0.075 in")
pad14.Reversed = True

sketch20 = body.newObject("Sketcher::SketchObject", "Sketch019")
sketch20.AttachmentSupport = (doc.getObject("YZ_Plane"), [""])
sketch20.MapMode = "FlatFace"
sketch20.AttachmentOffset = App.Placement(V(0, 0, 0.3 * 25.4), App.Rotation())
add_polygon(sketch20, [(6.985, 32.8395), (0, 32.8395), (0, 30.2995), (6.985, 30.2995)])
add_polygon(sketch20, [(6.985, 2.3341), (0, 2.3341), (0, -0.2059), (6.985, -0.2059)])
sketch20.addConstraint(Sketcher.Constraint("Horizontal", 0))
sketch20.addConstraint(Sketcher.Constraint("Vertical", 1))
sketch20.addConstraint(Sketcher.Constraint("Horizontal", 2))
sketch20.addConstraint(Sketcher.Constraint("Vertical", 3))
sketch20.addConstraint(Sketcher.Constraint("Horizontal", 4))
sketch20.addConstraint(Sketcher.Constraint("Vertical", 5))
sketch20.addConstraint(Sketcher.Constraint("Horizontal", 6))
sketch20.addConstraint(Sketcher.Constraint("Vertical", 7))
sketch20.addConstraint(Sketcher.Constraint("PointOnObject", 0, 2, -2))
sketch20.addConstraint(Sketcher.Constraint("PointOnObject", 4, 2, -2))
sketch20.addConstraint(Sketcher.Constraint("Vertical", 3, 2, 6, 2))
sketch20.addConstraint(Sketcher.Constraint("Equal", 3, 5))
sketch20.addConstraint(Sketcher.Constraint("DistanceY", 1, 2, 1, 1, Q("0.1 in")))
sketch20.addConstraint(Sketcher.Constraint("DistanceX", 0, 2, 0, 1, Q("0.275 in")))
sketch20.addConstraint(Sketcher.Constraint("DistanceY", 4, 2, 1, 2, Q("1.101 in")))
sketch20.addConstraint(Sketcher.Constraint("DistanceY", -1, 1, 0, 2, Q("1.2929 in")))
pad15 = body.newObject("PartDesign::Pad", "Pad014")
pad15.Profile = sketch20
pad15.Length = Q("0.05 in")

sketch21 = body.newObject("Sketcher::SketchObject", "Sketch020")
sketch21.AttachmentSupport = (doc.getObject("XZ_Plane"), [""])
sketch21.MapMode = "FlatFace"
sketch21.AttachmentOffset = App.Placement(V(0, 0, -2.6915), App.Rotation())
add_polygon(sketch21, [(2.54, 29.3542), (0, 29.3542), (0, 32.8395), (2.54, 32.8395)])
sketch21.addConstraint(Sketcher.Constraint("Horizontal", 0))
sketch21.addConstraint(Sketcher.Constraint("Vertical", 1))
sketch21.addConstraint(Sketcher.Constraint("Horizontal", 2))
sketch21.addConstraint(Sketcher.Constraint("Vertical", 3))
sketch21.addConstraint(Sketcher.Constraint("PointOnObject", 0, 2, -2))
sketch21.addConstraint(Sketcher.Constraint("DistanceX", 0, 2, 0, 1, Q("0.1 in")))
sketch21.addConstraint(Sketcher.Constraint("DistanceY", 1, 1, 1, 2, Q("3.4853 mm")))
sketch21.addConstraint(Sketcher.Constraint("DistanceY", -1, 1, 1, 2, Q("1.2929 in")))
pad16 = body.newObject("PartDesign::Pad", "Pad015")
pad16.Profile = sketch21
pad16.Length = Q("0.4 in")
pad16.Reversed = True

sketch22 = body.newObject("Sketcher::SketchObject", "Sketch021")
sketch22.AttachmentSupport = (doc.getObject("XZ_Plane"), [""])
sketch22.MapMode = "FlatFace"
sketch22.AttachmentOffset = App.Placement(V(0, 0, -0.5 * 25.4), App.Rotation())
sketch22.addGeometry(Part.LineSegment(V(-58.42, 11.811, 0), V(-75.5856, 11.811, 0)), False)
sketch22.addGeometry(Part.ArcOfCircle(Part.Circle(V(-77.3836, 21.5336, 0), V(0, 0, 1), 9.887454), math.radians(84.121268), math.radians(280.477338)), False)
sketch22.addGeometry(Part.LineSegment(V(-76.3709, 31.369, 0), V(-58.42, 31.369, 0)), False)
sketch22.addGeometry(Part.LineSegment(V(-58.42, 31.369, 0), V(-58.42, 27.94, 0)), False)
sketch22.addGeometry(Part.LineSegment(V(-58.42, 27.94, 0), V(-81.3576, 27.94, 0)), False)
sketch22.addGeometry(Part.ArcOfCircle(Part.Circle(V(-77.3836, 21.5336, 0), V(0, 0, 1), 7.538914), math.radians(121.812038), math.radians(236.596603)), False)
sketch22.addGeometry(Part.LineSegment(V(-81.534, 15.24, 0), V(-58.42, 15.24, 0)), False)
sketch22.addGeometry(Part.LineSegment(V(-58.42, 15.24, 0), V(-58.42, 11.811, 0)), False)
sketch22.addConstraint(Sketcher.Constraint("Coincident", 0, 2, 1, 2))
sketch22.addConstraint(Sketcher.Constraint("Coincident", 1, 1, 2, 1))
sketch22.addConstraint(Sketcher.Constraint("Coincident", 2, 2, 3, 1))
sketch22.addConstraint(Sketcher.Constraint("Coincident", 3, 2, 4, 1))
sketch22.addConstraint(Sketcher.Constraint("Coincident", 4, 2, 5, 1))
sketch22.addConstraint(Sketcher.Constraint("Coincident", 5, 2, 6, 1))
sketch22.addConstraint(Sketcher.Constraint("Coincident", 6, 2, 7, 1))
sketch22.addConstraint(Sketcher.Constraint("Coincident", 7, 2, 0, 1))
sketch22.addConstraint(Sketcher.Constraint("Horizontal", 0))
sketch22.addConstraint(Sketcher.Constraint("Horizontal", 2))
sketch22.addConstraint(Sketcher.Constraint("Vertical", 3))
sketch22.addConstraint(Sketcher.Constraint("Horizontal", 4))
sketch22.addConstraint(Sketcher.Constraint("Horizontal", 6))
sketch22.addConstraint(Sketcher.Constraint("Vertical", 7))
sketch22.addConstraint(Sketcher.Constraint("Coincident", 5, 3, 1, 3))
sketch22.addConstraint(Sketcher.Constraint("Vertical", 3, 2, 6, 2))
sketch22.addConstraint(Sketcher.Constraint("Equal", 3, 7))
sketch22.addConstraint(Sketcher.Constraint("DistanceY", 3, 2, 3, 1, Q("0.135 in")))
sketch22.addConstraint(Sketcher.Constraint("DistanceX", 6, 1, 6, 2, Q("0.91 in")))
sketch22.addConstraint(Sketcher.Constraint("DistanceX", 2, 2, -1, 1, Q("2.3 in")))
sketch22.addConstraint(Sketcher.Constraint("DistanceY", -1, 1, 3, 2, Q("1.1 in")))
sketch22.addConstraint(Sketcher.Constraint("DistanceY", -1, 1, 5, 2, Q("0.6 in")))
sketch22.addConstraint(Sketcher.Constraint("Radius", 5, Q("0.2968 in")))
sketch22.addConstraint(Sketcher.Constraint("Radius", 1, Q("9.8875 mm")))
sketch22.addConstraint(Sketcher.Constraint("DistanceX", 0, 2, 0, 1, Q("0.6758 in")))
pad17 = body.newObject("PartDesign::Pad", "Pad016")
pad17.Profile = sketch22
pad17.Length = Q("0.5 in")

sketch23 = body.newObject("Sketcher::SketchObject", "Sketch022")
sketch23.AttachmentSupport = (doc.getObject("XY_Plane"), [""])
sketch23.MapMode = "FlatFace"
sketch23.AttachmentOffset = App.Placement(V(0, 0, -0.0081063 * 25.4), App.Rotation())
sketch23.addGeometry(Part.Circle(V(5.715, 3.4925, 0), V(0, 0, 1), 1.905), False)
sketch23.addConstraint(Sketcher.Constraint("Diameter", 0, Q("0.15 in")))
sketch23.addConstraint(Sketcher.Constraint("DistanceX", -1, 1, 0, 3, Q("0.225 in")))
sketch23.addConstraint(Sketcher.Constraint("DistanceY", -1, 1, 0, 3, Q("0.1375 in")))
pocket6 = body.newObject("PartDesign::Pocket", "Pocket005")
pocket6.Profile = sketch23
pocket6.Length = Q("1.4 in")
pocket6.Reversed = True

sketch24 = body.newObject("Sketcher::SketchObject", "Sketch023")
sketch24.AttachmentSupport = (doc.getObject("YZ_Plane"), [""])
sketch24.MapMode = "FlatFace"
sketch24.AttachmentOffset = App.Placement(V(0, 0, 0.1 * 25.4), App.Rotation())
add_polygon(sketch24, [(2.6915, 82.7007), (10.8195, 82.7007), (10.8195, 85.9574), (2.6915, 85.9574)])
sketch24.addConstraint(Sketcher.Constraint("Horizontal", 0))
sketch24.addConstraint(Sketcher.Constraint("Vertical", 1))
sketch24.addConstraint(Sketcher.Constraint("Horizontal", 2))
sketch24.addConstraint(Sketcher.Constraint("Vertical", 3))
sketch24.addConstraint(Sketcher.Constraint("DistanceX", 0, 1, 0, 2, Q("0.32 in")))
sketch24.addConstraint(Sketcher.Constraint("DistanceY", 1, 1, 1, 2, Q("3.2567 mm")))
sketch24.addConstraint(Sketcher.Constraint("DistanceX", -1, 1, 0, 2, Q("10.8195 mm")))
sketch24.addConstraint(Sketcher.Constraint("DistanceY", -1, 1, 0, 2, Q("82.7007 mm")))
pocket7 = body.newObject("PartDesign::Pocket", "Pocket006")
pocket7.Profile = sketch24
pocket7.Length = Q("0.125 in")

sketch25 = body.newObject("Sketcher::SketchObject", "Sketch024")
sketch25.AttachmentSupport = (doc.getObject("XZ_Plane"), [""])
sketch25.MapMode = "FlatFace"
sketch25.AttachmentOffset = App.Placement(V(0, 0, -0.1 * 25.4), App.Rotation())
sketch25.addGeometry(Part.Circle(V(-3.5, 28.67, 0), V(0, 0, 1), 1.375), False)
sketch25.addGeometry(Part.Circle(V(-52.5, 28.67, 0), V(0, 0, 1), 1.375), False)
sketch25.addGeometry(Part.Circle(V(-52.5, 86.67, 0), V(0, 0, 1), 1.375), False)
sketch25.addGeometry(Part.Circle(V(-3.5, 86.67, 0), V(0, 0, 1), 1.375), False)
sketch25.addConstraint(Sketcher.Constraint("Equal", 0, 1))
sketch25.addConstraint(Sketcher.Constraint("Equal", 1, 2))
sketch25.addConstraint(Sketcher.Constraint("Equal", 2, 3))
sketch25.addConstraint(Sketcher.Constraint("Horizontal", 0, 3, 1, 3))
sketch25.addConstraint(Sketcher.Constraint("Horizontal", 2, 3, 3, 3))
sketch25.addConstraint(Sketcher.Constraint("Vertical", 1, 3, 2, 3))
sketch25.addConstraint(Sketcher.Constraint("Vertical", 0, 3, 3, 3))
sketch25.addConstraint(Sketcher.Constraint("Diameter", 0, Q("2.75 mm")))
sketch25.addConstraint(Sketcher.Constraint("DistanceX", 0, 3, -1, 1, Q("0.1378 in")))
sketch25.addConstraint(Sketcher.Constraint("DistanceY", -1, 1, 2, 3, Q("3.4122 in")))
sketch25.addConstraint(Sketcher.Constraint("DistanceY", -1, 1, 0, 3, Q("28.67 mm")))
sketch25.addConstraint(Sketcher.Constraint("DistanceX", 1, 3, -1, 1, Q("52.5 mm")))
pocket8 = body.newObject("PartDesign::Pocket", "Pocket007")
pocket8.Profile = sketch25
pocket8.Length = Q("0.875 in")
pocket8.Reversed = True

sketch26 = body.newObject("Sketcher::SketchObject", "Sketch025")
sketch26.AttachmentSupport = (doc.getObject("YZ_Plane"), [""])
sketch26.MapMode = "FlatFace"
sketch26.AttachmentOffset = App.Placement(V(0, 0, 0.1 * 25.4), App.Rotation())
add_polygon(sketch26, [(10.8195, 85.9574), (10.8195, 32.8395), (13.0489, 32.8395), (13.0489, 85.9574)])
sketch26.addConstraint(Sketcher.Constraint("Vertical", 0))
sketch26.addConstraint(Sketcher.Constraint("Horizontal", 1))
sketch26.addConstraint(Sketcher.Constraint("Vertical", 2))
sketch26.addConstraint(Sketcher.Constraint("Horizontal", 3))
sketch26.addConstraint(Sketcher.Constraint("DistanceX", 1, 1, 1, 2, Q("2.2294 mm")))
sketch26.addConstraint(Sketcher.Constraint("DistanceY", 0, 2, 0, 1, Q("53.118 mm")))
sketch26.addConstraint(Sketcher.Constraint("DistanceY", -1, 1, 0, 2, Q("1.2929 in")))
sketch26.addConstraint(Sketcher.Constraint("DistanceX", -1, 1, 0, 2, Q("10.8195 mm")))
pocket9 = body.newObject("PartDesign::Pocket", "Pocket008")
pocket9.Profile = sketch26
pocket9.Length = Q("0.3125 in")

doc.recompute()
